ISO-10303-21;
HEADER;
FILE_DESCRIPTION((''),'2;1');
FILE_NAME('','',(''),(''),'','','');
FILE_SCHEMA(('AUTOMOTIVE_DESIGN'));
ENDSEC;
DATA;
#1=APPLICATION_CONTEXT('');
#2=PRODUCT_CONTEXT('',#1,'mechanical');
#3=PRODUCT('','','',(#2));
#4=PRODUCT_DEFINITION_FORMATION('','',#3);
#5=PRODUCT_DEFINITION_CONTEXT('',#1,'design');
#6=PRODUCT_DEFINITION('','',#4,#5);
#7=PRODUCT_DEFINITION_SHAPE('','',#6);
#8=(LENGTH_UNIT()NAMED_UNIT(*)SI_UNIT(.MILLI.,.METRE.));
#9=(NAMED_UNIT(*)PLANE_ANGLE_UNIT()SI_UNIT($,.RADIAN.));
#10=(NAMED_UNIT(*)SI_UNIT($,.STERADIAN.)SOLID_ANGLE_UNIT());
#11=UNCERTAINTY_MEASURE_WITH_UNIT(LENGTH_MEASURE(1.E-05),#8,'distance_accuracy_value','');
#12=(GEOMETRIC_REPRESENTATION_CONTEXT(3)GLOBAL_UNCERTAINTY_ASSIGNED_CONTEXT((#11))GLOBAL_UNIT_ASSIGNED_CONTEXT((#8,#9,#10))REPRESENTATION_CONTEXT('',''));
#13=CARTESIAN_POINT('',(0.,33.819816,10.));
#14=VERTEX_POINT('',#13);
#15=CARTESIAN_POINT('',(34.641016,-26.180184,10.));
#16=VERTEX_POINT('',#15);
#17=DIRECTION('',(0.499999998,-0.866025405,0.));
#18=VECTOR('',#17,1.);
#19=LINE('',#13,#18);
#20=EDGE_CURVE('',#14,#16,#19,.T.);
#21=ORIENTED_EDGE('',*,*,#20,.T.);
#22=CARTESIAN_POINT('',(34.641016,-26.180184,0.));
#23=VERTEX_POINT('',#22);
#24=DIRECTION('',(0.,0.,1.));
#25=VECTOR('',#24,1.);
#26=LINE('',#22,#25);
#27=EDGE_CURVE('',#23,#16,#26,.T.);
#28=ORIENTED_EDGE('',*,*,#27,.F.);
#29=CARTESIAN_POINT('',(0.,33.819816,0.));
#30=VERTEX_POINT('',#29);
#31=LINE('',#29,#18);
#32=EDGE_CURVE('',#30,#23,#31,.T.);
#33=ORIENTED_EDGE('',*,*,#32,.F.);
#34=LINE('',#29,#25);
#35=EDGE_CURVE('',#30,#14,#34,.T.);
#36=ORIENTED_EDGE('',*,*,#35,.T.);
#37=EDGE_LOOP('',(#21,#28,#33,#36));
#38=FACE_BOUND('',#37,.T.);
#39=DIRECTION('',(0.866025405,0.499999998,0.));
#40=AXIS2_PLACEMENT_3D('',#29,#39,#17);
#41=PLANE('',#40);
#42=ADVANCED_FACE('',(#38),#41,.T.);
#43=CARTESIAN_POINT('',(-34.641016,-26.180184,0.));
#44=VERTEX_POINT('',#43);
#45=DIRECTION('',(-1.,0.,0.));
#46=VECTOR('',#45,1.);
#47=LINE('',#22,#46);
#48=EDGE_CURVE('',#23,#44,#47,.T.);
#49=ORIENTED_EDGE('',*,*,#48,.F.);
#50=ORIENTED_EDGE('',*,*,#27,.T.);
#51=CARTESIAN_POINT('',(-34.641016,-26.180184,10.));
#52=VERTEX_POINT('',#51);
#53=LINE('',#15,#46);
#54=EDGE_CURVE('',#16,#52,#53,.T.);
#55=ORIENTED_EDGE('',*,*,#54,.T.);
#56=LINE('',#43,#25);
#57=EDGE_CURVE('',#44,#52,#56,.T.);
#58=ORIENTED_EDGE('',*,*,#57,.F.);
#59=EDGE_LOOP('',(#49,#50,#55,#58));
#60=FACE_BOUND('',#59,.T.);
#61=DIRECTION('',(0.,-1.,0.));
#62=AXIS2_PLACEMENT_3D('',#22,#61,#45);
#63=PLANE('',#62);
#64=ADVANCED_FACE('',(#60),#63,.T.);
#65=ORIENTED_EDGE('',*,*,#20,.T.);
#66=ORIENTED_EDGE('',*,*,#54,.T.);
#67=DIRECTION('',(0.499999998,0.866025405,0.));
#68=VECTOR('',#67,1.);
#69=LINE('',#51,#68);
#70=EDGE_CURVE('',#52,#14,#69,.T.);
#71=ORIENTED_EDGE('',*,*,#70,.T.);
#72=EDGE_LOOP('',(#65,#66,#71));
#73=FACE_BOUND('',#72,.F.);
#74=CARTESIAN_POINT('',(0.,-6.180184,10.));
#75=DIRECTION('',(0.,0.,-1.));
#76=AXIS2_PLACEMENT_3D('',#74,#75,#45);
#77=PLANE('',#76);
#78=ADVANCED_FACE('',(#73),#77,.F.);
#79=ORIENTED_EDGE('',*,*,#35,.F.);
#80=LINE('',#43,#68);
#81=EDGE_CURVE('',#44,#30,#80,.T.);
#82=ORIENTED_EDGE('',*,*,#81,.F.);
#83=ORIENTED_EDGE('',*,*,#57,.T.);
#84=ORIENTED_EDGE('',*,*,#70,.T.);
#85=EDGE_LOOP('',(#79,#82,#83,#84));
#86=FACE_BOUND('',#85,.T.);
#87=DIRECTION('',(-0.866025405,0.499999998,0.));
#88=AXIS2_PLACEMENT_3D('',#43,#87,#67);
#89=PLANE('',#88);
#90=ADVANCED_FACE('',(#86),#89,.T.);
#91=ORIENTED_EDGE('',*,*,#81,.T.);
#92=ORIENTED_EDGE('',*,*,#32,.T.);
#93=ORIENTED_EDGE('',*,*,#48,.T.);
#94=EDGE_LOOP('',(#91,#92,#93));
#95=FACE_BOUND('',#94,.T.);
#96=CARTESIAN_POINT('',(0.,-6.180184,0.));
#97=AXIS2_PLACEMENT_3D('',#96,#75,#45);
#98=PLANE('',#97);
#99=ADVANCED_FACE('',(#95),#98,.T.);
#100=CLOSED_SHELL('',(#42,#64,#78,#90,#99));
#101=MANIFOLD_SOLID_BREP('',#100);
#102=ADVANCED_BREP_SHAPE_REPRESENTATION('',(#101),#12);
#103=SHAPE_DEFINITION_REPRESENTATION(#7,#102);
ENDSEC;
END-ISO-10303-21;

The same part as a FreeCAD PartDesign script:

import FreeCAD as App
import Part
import Sketcher
from FreeCAD import Vector
Q = App.Units.Quantity


def add_polygon(sketch, points):
    """Adds a closed chain of lines whose ends are joined by coincident constraints."""
    first, n = sketch.GeometryCount, len(points)
    for a, b in zip(points, points[1:] + points[:1]):
        sketch.addGeometry(Part.LineSegment(App.Vector(*a, 0), App.Vector(*b, 0)), False)
    for i in range(n):
        sketch.addConstraint(Sketcher.Constraint("Coincident", first + i, 2, first + (i + 1) % n, 1))

doc = App.newDocument("Part")
body = doc.addObject("PartDesign::Body", "Body")

# Sketch on XY plane
sketch1 = body.newObject("Sketcher::SketchObject", "Sketch")
sketch1.AttachmentSupport = (doc.getObject("XY_Plane"), [""])
sketch1.MapMode = "FlatFace"
add_polygon(sketch1, [(34.641016, -26.180184), (0, 33.819816), (-34.641016, -26.180184)])  # lines 0-2
sketch1.addConstraint([
    Sketcher.Constraint("Horizontal", 2),
    Sketcher.Constraint("PointOnObject", 0, 2, -2),
    Sketcher.Constraint("Equal", 0, 1),
    Sketcher.Constraint("Angle", 0, Q("120 deg")),
    Sketcher.Constraint("DistanceY", 1, 2, 0, 2, 60.0),
    Sketcher.Constraint("DistanceY", -1, 1, 0, 2, 33.819816),
])
pad1 = body.newObject("PartDesign::Pad", "Pad")
pad1.Profile = sketch1
pad1.Length = 10

doc.recompute()
